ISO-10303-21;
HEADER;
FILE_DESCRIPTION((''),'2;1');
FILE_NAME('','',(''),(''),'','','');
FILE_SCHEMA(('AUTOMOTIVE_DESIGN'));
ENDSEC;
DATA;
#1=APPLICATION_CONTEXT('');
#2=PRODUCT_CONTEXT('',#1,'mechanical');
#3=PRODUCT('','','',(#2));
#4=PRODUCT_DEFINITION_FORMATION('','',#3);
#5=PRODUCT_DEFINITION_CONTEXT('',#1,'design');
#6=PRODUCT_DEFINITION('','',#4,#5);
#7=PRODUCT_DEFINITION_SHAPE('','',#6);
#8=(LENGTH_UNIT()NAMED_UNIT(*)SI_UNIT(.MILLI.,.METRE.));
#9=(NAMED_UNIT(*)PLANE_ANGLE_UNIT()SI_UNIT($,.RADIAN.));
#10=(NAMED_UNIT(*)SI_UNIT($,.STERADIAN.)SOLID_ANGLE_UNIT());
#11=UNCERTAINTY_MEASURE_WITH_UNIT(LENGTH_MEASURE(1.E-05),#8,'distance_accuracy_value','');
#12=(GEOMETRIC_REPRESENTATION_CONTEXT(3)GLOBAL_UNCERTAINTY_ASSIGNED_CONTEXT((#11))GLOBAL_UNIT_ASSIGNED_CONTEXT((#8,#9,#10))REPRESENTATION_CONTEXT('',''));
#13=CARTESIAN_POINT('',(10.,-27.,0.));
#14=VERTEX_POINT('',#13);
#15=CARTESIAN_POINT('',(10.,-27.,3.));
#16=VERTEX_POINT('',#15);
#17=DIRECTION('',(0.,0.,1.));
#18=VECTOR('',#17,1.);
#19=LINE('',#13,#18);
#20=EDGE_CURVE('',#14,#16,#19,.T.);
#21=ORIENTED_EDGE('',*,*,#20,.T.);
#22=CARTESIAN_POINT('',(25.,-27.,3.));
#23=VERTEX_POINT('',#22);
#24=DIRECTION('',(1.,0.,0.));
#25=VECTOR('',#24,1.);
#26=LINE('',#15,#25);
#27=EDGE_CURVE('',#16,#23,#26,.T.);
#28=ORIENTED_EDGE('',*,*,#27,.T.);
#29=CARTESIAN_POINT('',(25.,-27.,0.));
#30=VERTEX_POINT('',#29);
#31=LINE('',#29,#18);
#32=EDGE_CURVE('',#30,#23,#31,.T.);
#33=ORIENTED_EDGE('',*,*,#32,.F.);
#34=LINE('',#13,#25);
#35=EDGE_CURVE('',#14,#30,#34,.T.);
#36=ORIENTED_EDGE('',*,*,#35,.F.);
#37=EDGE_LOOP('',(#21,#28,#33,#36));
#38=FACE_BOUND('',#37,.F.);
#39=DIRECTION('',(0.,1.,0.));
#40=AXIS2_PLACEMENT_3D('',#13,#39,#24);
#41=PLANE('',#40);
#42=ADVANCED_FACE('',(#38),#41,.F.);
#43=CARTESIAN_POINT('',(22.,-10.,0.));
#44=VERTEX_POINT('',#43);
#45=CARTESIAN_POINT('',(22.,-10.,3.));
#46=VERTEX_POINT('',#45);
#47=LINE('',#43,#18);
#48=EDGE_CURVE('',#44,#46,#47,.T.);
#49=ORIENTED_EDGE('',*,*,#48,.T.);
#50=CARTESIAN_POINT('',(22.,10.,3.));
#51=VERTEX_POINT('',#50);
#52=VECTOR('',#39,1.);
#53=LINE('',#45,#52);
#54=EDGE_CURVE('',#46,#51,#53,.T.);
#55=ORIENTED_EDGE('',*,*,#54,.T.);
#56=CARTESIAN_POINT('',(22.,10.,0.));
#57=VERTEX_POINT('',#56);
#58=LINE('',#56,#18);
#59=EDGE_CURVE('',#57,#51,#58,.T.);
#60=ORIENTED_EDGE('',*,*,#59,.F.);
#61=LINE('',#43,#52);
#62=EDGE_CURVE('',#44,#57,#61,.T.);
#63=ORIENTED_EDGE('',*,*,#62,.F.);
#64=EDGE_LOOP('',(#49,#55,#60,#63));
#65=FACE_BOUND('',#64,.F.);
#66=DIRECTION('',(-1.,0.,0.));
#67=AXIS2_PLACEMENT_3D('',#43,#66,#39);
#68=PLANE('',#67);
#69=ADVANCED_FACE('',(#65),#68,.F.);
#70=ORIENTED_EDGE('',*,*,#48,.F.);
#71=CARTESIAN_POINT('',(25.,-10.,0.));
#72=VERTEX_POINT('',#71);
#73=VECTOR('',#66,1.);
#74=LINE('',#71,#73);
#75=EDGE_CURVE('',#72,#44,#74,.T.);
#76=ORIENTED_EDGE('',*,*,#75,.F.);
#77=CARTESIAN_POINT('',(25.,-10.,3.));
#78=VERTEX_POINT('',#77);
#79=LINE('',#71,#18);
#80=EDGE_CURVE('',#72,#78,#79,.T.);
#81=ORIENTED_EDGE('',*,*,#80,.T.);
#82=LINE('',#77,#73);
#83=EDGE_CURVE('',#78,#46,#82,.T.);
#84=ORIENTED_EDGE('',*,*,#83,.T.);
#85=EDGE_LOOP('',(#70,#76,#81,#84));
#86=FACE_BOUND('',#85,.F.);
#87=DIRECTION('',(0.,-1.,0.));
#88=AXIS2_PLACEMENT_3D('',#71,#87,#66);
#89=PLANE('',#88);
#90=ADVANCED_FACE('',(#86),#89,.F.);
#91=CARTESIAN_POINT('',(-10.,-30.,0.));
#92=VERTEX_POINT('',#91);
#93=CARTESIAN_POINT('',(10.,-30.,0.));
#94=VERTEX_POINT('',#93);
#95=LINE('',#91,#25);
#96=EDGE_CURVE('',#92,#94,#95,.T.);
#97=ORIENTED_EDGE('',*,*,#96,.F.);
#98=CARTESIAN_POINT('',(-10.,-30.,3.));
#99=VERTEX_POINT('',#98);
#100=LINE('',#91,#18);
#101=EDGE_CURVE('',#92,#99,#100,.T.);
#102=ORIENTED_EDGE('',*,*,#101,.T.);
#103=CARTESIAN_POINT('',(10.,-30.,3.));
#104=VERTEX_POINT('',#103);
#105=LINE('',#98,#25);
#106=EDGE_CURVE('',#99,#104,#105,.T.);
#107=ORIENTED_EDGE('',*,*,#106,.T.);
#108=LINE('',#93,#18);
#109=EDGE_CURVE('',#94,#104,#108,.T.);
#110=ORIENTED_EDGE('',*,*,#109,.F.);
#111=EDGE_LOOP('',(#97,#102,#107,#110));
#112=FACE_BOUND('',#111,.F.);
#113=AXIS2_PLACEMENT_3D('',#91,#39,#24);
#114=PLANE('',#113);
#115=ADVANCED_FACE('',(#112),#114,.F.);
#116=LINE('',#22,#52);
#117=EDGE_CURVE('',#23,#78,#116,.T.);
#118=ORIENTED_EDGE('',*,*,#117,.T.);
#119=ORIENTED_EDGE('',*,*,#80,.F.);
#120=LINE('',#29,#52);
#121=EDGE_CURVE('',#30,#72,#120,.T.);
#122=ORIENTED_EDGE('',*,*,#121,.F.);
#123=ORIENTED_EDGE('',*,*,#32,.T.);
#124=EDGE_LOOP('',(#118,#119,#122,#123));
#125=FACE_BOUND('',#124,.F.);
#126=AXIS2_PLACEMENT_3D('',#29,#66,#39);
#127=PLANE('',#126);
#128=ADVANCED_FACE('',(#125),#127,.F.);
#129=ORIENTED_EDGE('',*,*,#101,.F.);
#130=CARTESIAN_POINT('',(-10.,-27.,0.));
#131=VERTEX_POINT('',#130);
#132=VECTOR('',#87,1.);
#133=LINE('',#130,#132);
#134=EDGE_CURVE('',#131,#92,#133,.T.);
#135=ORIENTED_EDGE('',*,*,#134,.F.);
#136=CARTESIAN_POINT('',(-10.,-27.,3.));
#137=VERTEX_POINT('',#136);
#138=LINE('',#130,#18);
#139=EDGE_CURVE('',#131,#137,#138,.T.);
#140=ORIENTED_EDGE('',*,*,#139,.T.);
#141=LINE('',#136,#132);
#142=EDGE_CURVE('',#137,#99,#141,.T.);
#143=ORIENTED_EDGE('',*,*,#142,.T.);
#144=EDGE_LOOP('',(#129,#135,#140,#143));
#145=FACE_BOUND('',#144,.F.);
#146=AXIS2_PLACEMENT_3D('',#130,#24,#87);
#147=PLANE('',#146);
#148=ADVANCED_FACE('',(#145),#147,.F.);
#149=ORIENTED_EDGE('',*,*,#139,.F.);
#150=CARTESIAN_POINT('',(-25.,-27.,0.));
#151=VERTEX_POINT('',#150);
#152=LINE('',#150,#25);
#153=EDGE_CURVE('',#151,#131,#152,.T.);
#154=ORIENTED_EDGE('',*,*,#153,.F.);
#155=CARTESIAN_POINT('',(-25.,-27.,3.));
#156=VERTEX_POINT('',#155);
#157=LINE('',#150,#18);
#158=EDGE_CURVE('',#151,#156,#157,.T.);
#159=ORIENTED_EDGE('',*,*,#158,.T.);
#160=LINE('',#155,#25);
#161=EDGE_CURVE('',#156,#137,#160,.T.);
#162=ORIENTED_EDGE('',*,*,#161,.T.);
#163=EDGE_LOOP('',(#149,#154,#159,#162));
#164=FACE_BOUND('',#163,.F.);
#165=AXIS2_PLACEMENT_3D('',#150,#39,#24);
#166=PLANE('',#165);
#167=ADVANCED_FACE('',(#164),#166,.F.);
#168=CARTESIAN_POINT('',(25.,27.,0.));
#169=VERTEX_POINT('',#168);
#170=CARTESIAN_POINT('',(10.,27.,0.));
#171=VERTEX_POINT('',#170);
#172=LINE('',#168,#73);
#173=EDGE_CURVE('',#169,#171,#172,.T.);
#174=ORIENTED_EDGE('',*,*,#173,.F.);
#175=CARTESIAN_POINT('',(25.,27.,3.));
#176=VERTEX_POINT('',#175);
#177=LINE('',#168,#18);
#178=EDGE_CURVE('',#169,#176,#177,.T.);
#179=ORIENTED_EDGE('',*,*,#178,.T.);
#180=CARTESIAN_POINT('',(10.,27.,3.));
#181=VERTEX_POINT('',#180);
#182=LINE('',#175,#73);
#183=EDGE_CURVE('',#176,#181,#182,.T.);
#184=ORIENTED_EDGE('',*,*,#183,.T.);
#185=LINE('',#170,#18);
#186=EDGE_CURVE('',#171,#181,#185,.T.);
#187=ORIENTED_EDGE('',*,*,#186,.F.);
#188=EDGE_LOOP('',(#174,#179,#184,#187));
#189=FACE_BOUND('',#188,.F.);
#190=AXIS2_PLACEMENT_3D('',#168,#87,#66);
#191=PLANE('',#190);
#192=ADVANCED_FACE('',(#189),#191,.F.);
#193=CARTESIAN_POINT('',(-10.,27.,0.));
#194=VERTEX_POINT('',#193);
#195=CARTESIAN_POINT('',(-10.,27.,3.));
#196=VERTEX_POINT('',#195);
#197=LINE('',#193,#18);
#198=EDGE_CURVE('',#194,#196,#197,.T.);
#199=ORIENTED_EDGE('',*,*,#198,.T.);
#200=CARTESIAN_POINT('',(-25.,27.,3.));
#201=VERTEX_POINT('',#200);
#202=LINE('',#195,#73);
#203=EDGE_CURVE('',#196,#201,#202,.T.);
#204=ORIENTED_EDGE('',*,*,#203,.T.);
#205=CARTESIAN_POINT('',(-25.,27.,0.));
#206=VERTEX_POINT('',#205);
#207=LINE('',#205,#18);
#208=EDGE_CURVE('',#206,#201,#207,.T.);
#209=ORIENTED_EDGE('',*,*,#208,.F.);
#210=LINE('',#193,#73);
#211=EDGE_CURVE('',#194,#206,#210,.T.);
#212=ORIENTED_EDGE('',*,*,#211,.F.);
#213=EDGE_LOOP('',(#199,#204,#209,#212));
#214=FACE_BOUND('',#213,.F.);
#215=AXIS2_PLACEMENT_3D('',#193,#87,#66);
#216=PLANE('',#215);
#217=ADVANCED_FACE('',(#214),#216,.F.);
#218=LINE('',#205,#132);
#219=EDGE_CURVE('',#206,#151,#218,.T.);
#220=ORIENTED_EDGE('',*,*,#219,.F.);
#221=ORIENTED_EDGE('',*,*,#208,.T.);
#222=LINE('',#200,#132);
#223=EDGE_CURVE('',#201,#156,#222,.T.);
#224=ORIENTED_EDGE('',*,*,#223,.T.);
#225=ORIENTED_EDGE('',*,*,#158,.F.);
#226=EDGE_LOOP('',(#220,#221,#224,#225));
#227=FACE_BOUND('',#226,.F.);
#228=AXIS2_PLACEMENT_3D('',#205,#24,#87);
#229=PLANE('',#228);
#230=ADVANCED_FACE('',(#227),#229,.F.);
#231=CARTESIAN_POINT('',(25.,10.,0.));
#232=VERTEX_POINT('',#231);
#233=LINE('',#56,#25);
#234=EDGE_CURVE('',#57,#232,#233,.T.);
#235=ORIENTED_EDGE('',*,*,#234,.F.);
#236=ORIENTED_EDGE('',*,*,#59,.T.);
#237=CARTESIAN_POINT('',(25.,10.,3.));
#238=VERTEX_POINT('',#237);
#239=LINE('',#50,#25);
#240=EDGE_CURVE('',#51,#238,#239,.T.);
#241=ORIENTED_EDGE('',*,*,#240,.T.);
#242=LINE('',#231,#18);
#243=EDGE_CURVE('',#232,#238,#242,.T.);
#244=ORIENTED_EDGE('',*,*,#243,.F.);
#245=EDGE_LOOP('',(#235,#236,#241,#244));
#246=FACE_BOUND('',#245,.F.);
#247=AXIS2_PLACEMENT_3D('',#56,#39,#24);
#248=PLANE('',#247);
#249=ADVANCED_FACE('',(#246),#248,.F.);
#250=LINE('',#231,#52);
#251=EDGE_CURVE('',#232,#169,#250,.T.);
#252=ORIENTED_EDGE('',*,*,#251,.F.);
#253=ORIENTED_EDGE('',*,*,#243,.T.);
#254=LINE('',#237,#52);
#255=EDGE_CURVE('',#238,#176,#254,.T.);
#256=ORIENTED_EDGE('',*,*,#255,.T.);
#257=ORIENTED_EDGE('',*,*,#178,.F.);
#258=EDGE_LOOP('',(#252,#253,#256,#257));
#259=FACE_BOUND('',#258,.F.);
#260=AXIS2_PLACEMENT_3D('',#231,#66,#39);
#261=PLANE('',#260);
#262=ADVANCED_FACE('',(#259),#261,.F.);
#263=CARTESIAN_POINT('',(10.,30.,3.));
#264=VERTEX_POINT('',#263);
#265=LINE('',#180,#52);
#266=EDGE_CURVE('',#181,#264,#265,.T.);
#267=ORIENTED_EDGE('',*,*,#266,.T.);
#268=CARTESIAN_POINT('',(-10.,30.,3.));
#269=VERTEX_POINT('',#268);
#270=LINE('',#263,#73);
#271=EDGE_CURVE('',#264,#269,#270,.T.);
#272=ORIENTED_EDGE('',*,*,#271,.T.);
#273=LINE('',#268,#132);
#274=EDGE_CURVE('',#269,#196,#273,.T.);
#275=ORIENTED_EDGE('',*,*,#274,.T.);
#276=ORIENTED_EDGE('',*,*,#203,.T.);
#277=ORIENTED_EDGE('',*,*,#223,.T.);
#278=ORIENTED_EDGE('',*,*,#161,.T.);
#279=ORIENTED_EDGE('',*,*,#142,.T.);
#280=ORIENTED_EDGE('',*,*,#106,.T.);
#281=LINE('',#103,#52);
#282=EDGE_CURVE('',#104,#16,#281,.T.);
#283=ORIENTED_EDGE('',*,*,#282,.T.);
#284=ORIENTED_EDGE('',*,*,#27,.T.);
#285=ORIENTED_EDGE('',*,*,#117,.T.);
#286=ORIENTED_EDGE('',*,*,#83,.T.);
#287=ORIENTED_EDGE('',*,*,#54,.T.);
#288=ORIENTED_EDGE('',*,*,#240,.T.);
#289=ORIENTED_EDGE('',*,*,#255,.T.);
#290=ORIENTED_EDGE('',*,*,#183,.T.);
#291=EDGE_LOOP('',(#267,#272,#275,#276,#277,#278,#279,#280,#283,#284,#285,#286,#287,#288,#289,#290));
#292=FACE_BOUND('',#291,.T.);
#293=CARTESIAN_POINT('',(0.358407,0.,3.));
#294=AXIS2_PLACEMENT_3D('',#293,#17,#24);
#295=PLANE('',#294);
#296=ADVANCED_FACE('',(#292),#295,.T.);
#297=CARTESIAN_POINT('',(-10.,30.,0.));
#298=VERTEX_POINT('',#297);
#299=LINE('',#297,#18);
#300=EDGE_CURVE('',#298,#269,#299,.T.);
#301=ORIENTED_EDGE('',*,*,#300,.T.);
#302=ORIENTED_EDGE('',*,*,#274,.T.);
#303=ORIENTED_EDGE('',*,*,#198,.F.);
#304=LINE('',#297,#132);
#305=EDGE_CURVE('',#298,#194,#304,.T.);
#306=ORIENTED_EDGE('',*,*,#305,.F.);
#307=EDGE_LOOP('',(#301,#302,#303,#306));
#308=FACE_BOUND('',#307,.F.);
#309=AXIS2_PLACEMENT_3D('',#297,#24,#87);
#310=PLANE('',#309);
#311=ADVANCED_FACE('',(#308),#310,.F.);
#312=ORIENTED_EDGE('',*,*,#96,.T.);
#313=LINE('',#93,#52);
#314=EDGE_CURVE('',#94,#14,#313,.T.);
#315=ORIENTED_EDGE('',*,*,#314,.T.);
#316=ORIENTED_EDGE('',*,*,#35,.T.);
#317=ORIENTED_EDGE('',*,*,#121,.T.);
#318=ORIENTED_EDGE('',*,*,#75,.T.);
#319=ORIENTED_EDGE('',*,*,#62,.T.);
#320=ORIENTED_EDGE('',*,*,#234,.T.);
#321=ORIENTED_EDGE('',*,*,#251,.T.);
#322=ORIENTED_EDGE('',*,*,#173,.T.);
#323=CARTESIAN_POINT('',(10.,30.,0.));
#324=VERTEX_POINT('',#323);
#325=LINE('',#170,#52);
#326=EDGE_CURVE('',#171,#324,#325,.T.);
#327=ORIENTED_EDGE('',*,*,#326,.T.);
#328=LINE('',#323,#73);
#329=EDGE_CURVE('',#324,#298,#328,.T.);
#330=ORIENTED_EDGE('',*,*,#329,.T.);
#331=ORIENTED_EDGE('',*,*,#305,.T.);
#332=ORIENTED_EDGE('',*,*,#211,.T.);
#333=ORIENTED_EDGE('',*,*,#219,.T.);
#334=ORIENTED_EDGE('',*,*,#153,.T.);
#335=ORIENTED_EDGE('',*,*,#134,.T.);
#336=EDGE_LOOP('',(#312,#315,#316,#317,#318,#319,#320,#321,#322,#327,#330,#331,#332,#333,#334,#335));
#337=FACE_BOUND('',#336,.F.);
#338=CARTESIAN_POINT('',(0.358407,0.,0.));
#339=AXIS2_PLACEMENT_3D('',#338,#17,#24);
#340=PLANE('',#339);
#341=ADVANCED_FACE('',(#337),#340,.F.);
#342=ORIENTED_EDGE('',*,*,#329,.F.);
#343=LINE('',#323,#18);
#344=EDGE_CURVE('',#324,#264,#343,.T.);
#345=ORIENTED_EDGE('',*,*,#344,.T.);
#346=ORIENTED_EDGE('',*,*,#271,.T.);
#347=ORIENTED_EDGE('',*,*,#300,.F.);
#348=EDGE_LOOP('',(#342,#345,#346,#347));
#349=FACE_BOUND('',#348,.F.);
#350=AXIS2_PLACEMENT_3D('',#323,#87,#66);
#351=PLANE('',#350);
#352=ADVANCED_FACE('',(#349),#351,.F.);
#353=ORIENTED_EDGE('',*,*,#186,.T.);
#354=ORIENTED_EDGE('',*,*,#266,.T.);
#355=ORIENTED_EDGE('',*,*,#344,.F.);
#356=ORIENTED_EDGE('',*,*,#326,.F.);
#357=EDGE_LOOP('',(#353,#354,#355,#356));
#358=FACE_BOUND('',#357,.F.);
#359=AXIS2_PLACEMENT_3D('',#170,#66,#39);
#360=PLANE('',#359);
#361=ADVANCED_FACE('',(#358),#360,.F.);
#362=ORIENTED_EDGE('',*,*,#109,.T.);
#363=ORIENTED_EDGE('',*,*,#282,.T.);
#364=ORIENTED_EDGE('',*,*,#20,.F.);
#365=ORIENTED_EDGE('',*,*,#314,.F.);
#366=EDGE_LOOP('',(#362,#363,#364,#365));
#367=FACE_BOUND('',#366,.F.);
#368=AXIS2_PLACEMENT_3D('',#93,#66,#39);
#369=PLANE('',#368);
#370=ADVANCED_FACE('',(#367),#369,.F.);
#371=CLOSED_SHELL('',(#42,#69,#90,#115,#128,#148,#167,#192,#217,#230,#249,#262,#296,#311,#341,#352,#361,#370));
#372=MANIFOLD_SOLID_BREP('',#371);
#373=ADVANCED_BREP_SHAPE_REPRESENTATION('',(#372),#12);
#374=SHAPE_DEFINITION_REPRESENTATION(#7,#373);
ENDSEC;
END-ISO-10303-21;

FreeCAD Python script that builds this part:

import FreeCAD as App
import Part
import Sketcher
Q = App.Units.Quantity

doc = App.newDocument("Part")
params = doc.addObject("Spreadsheet::Sheet", "Params")
for row, (alias, value) in enumerate([
    ("sketch1_width", "20 mm"),
    ("sketch1_width2", "15 mm"),
    ("sketch1_width3", "3 mm"),
    ("sketch1_height", "54 mm"),
    ("pad1_length", "3 mm"),
], start=1):
    params.set(f"A{row}", alias)
    params.set(f"B{row}", "=" + value)
    params.setAlias(f"B{row}", alias)

body = doc.addObject("PartDesign::Body", "Body")

# Sketch on XY plane
sketch1 = body.newObject("Sketcher::SketchObject", "Sketch")
sketch1.AttachmentSupport = (doc.getObject("XY_Plane"), [""])
sketch1.MapMode = "FlatFace"
sketch1.addGeometry(Part.LineSegment(App.Vector(10, 27, 0), App.Vector(10, 30, 0)), False)
sketch1.addGeometry(Part.LineSegment(App.Vector(10, 30, 0), App.Vector(-10, 30, 0)), False)
sketch1.addGeometry(Part.LineSegment(App.Vector(-10, 30, 0), App.Vector(-10, 27, 0)), False)
sketch1.addGeometry(Part.LineSegment(App.Vector(-10, 27, 0), App.Vector(-25, 27, 0)), False)
sketch1.addGeometry(Part.LineSegment(App.Vector(-25, 27, 0), App.Vector(-25, -27, 0)), False)
sketch1.addGeometry(Part.LineSegment(App.Vector(-25, -27, 0), App.Vector(-10, -27, 0)), False)
sketch1.addGeometry(Part.LineSegment(App.Vector(-10, -27, 0), App.Vector(-10, -30, 0)), False)
sketch1.addGeometry(Part.LineSegment(App.Vector(-10, -30, 0), App.Vector(10, -30, 0)), False)
sketch1.addGeometry(Part.LineSegment(App.Vector(10, -30, 0), App.Vector(10, -27, 0)), False)
sketch1.addGeometry(Part.LineSegment(App.Vector(10, -27, 0), App.Vector(25, -27, 0)), False)
sketch1.addGeometry(Part.LineSegment(App.Vector(25, -27, 0), App.Vector(25, -10, 0)), False)
sketch1.addGeometry(Part.LineSegment(App.Vector(25, -10, 0), App.Vector(22, -10, 0)), False)
sketch1.addGeometry(Part.LineSegment(App.Vector(22, -10, 0), App.Vector(22, 10, 0)), False)
sketch1.addGeometry(Part.LineSegment(App.Vector(22, 10, 0), App.Vector(25, 10, 0)), False)
sketch1.addGeometry(Part.LineSegment(App.Vector(25, 10, 0), App.Vector(25, 27, 0)), False)
sketch1.addGeometry(Part.LineSegment(App.Vector(25, 27, 0), App.Vector(10, 27, 0)), False)
sketch1.addConstraint(Sketcher.Constraint("Coincident", 0, 2, 1, 1))
sketch1.addConstraint(Sketcher.Constraint("Coincident", 1, 2, 2, 1))
sketch1.addConstraint(Sketcher.Constraint("Coincident", 2, 2, 3, 1))
sketch1.addConstraint(Sketcher.Constraint("Coincident", 3, 2, 4, 1))
sketch1.addConstraint(Sketcher.Constraint("Coincident", 4, 2, 5, 1))
sketch1.addConstraint(Sketcher.Constraint("Coincident", 5, 2, 6, 1))
sketch1.addConstraint(Sketcher.Constraint("Coincident", 6, 2, 7, 1))
sketch1.addConstraint(Sketcher.Constraint("Coincident", 7, 2, 8, 1))
sketch1.addConstraint(Sketcher.Constraint("Coincident", 8, 2, 9, 1))
sketch1.addConstraint(Sketcher.Constraint("Coincident", 9, 2, 10, 1))
sketch1.addConstraint(Sketcher.Constraint("Coincident", 10, 2, 11, 1))
sketch1.addConstraint(Sketcher.Constraint("Coincident", 11, 2, 12, 1))
sketch1.addConstraint(Sketcher.Constraint("Coincident", 12, 2, 13, 1))
sketch1.addConstraint(Sketcher.Constraint("Coincident", 13, 2, 14, 1))
sketch1.addConstraint(Sketcher.Constraint("Coincident", 14, 2, 15, 1))
sketch1.addConstraint(Sketcher.Constraint("Coincident", 15, 2, 0, 1))
sketch1.addConstraint(Sketcher.Constraint("Vertical", 0))
sketch1.addConstraint(Sketcher.Constraint("Horizontal", 1))
sketch1.addConstraint(Sketcher.Constraint("Vertical", 2))
sketch1.addConstraint(Sketcher.Constraint("Horizontal", 3))
sketch1.addConstraint(Sketcher.Constraint("Vertical", 4))
sketch1.addConstraint(Sketcher.Constraint("Horizontal", 5))
sketch1.addConstraint(Sketcher.Constraint("Vertical", 6))
sketch1.addConstraint(Sketcher.Constraint("Horizontal", 7))
sketch1.addConstraint(Sketcher.Constraint("Vertical", 8))
sketch1.addConstraint(Sketcher.Constraint("Horizontal", 9))
sketch1.addConstraint(Sketcher.Constraint("Vertical", 10))
sketch1.addConstraint(Sketcher.Constraint("Horizontal", 11))
sketch1.addConstraint(Sketcher.Constraint("Vertical", 12))
sketch1.addConstraint(Sketcher.Constraint("Horizontal", 13))
sketch1.addConstraint(Sketcher.Constraint("Vertical", 14))
sketch1.addConstraint(Sketcher.Constraint("Horizontal", 15))
sketch1.addConstraint(Sketcher.Constraint("Symmetric", 0, 2, 6, 2, -1, 1))
sketch1.addConstraint(Sketcher.Constraint("Symmetric", 2, 2, 8, 2, -1, 1))
sketch1.addConstraint(Sketcher.Constraint("Symmetric", 4, 2, 14, 2, -1, 1))
sketch1.addConstraint(Sketcher.Constraint("Symmetric", 5, 2, 8, 2, -2))
sketch1.addConstraint(Sketcher.Constraint("Symmetric", 10, 2, 13, 2, -1))
sketch1.addConstraint(Sketcher.Constraint("Equal", 13, 0))
sketch1.addConstraint(Sketcher.Constraint("Equal", 7, 12))
sketch1.addConstraint(Sketcher.Constraint("DistanceX", 1, 2, 1, 1, Q("20 mm")))
sketch1.addConstraint(Sketcher.Constraint("DistanceX", 3, 2, 3, 1, Q("15 mm")))
sketch1.addConstraint(Sketcher.Constraint("DistanceX", 11, 2, 11, 1, Q("3 mm")))
sketch1.addConstraint(Sketcher.Constraint("DistanceY", 4, 2, 4, 1, Q("54 mm")))
sketch1.setExpression("Constraints[39]", "Params.sketch1_width")
sketch1.setExpression("Constraints[40]", "Params.sketch1_width2")
sketch1.setExpression("Constraints[41]", "Params.sketch1_width3")
sketch1.setExpression("Constraints[42]", "Params.sketch1_height")
pad1 = body.newObject("PartDesign::Pad", "Pad")
pad1.Profile = sketch1
pad1.setExpression("Length", "Params.pad1_length")

doc.recompute()
